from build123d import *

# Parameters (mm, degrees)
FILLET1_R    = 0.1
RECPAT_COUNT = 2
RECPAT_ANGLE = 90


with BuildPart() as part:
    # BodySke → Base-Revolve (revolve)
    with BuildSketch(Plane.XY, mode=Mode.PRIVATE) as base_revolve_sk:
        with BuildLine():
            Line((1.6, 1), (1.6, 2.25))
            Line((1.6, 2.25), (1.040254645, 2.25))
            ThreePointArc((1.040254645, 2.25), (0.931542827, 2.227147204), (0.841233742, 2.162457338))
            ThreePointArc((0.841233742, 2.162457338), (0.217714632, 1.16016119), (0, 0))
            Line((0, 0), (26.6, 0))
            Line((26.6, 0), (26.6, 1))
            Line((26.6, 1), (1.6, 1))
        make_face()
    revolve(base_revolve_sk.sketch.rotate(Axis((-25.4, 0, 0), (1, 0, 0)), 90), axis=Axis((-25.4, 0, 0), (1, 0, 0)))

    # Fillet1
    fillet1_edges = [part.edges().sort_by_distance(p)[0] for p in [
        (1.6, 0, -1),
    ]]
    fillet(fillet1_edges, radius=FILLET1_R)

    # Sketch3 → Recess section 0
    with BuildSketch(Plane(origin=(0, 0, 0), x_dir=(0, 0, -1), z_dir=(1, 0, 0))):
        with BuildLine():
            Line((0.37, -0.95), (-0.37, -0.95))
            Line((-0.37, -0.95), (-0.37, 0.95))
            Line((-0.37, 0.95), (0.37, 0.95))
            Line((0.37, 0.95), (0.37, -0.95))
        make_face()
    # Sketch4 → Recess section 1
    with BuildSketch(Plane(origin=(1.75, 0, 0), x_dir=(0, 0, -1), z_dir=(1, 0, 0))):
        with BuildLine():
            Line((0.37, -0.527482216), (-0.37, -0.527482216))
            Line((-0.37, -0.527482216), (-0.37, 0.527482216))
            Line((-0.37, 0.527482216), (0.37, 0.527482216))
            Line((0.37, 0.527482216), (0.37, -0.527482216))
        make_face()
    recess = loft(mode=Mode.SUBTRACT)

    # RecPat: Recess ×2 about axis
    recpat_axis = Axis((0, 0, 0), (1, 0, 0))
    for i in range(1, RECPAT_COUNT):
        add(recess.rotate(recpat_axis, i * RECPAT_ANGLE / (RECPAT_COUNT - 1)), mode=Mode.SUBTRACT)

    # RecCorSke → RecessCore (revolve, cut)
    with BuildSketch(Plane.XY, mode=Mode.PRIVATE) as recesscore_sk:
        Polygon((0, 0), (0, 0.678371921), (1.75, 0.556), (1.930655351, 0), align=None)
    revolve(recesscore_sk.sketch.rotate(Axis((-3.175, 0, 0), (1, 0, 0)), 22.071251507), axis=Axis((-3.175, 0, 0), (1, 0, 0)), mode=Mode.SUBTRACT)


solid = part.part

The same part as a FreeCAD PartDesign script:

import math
import FreeCAD as App
import Part
import Sketcher
from FreeCAD import Vector
Q = App.Units.Quantity


def edges_at(feature, points):
    """Names of the edges that pass closest to the given points."""
    edges = feature.Shape.Edges
    near = lambda p: min(range(len(edges)), key=lambda i: edges[i].distToShape(Part.Vertex(*p))[0])
    return sorted({f"Edge{near(p) + 1}" for p in points})


def add_polygon(sketch, points):
    """Adds a closed chain of lines whose ends are joined by coincident constraints."""
    first, n = sketch.GeometryCount, len(points)
    for a, b in zip(points, points[1:] + points[:1]):
        sketch.addGeometry(Part.LineSegment(App.Vector(*a, 0), App.Vector(*b, 0)), False)
    for i in range(n):
        sketch.addConstraint(Sketcher.Constraint("Coincident", first + i, 2, first + (i + 1) % n, 1))

doc = App.newDocument("Part")
body = doc.addObject("PartDesign::Body", "Body")

sketch1 = body.newObject("Sketcher::SketchObject", "Sketch")
sketch1.AttachmentSupport = (doc.getObject("XY_Plane"), [""])
sketch1.MapMode = "FlatFace"
sketch1.addGeometry(Part.LineSegment(Vector(1.6, 1, 0), Vector(1.6, 2.25, 0)), False)
sketch1.addGeometry(Part.LineSegment(Vector(1.6, 2.25, 0), Vector(1.04, 2.25, 0)), False)
sketch1.addGeometry(Part.ArcOfCircle(Part.Circle(Vector(1.04, 1.98, 0), Vector(0, 0, 1), 0.27), math.radians(90), math.radians(137)), False)
sketch1.addGeometry(Part.ArcOfCircle(Part.Circle(Vector(3.2, 0, 0), Vector(0, 0, 1), 3.2), math.radians(137), math.radians(180)), False)
sketch1.addGeometry(Part.LineSegment(Vector(0, 0, 0), Vector(26.6, 0, 0)), False)
sketch1.addGeometry(Part.LineSegment(Vector(26.6, 0, 0), Vector(26.6, 1, 0)), False)
sketch1.addGeometry(Part.LineSegment(Vector(26.6, 1, 0), Vector(1.6, 1, 0)), False)
sketch1.addConstraint(Sketcher.Constraint("Coincident", 0, 2, 1, 1))
sketch1.addConstraint(Sketcher.Constraint("Tangent", 1, 2, 2, 1))
sketch1.addConstraint(Sketcher.Constraint("Tangent", 2, 2, 3, 1))
sketch1.addConstraint(Sketcher.Constraint("Coincident", 3, 2, 4, 1))
sketch1.addConstraint(Sketcher.Constraint("Coincident", 4, 2, 5, 1))
sketch1.addConstraint(Sketcher.Constraint("Coincident", 5, 2, 6, 1))
sketch1.addConstraint(Sketcher.Constraint("Coincident", 6, 2, 0, 1))
sketch1.addConstraint(Sketcher.Constraint("Vertical", 0))
sketch1.addConstraint(Sketcher.Constraint("Horizontal", 1))
sketch1.addConstraint(Sketcher.Constraint("Horizontal", 4))
sketch1.addConstraint(Sketcher.Constraint("Vertical", 5))
sketch1.addConstraint(Sketcher.Constraint("Horizontal", 6))
sketch1.addConstraint(Sketcher.Constraint("Coincident", 3, 2, -1, 1))
sketch1.addConstraint(Sketcher.Constraint("PointOnObject", 3, 3, -1))
sketch1.addConstraint(Sketcher.Constraint("Radius", 3, 3.2))
sketch1.addConstraint(Sketcher.Constraint("DistanceX", 6, 2, 6, 1, 25.0))
sketch1.addConstraint(Sketcher.Constraint("DistanceY", 5, 1, 5, 2, 1.0))
sketch1.addConstraint(Sketcher.Constraint("Radius", 2, 0.27))
sketch1.addConstraint(Sketcher.Constraint("DistanceX", 4, 1, 4, 2, 26.6))
sketch1.addConstraint(Sketcher.Constraint("DistanceY", 0, 1, 0, 2, 1.25))
revolution = body.newObject("PartDesign::Revolution", "Revolution")
revolution.Profile = sketch1
revolution.ReferenceAxis = (sketch1, ["H_Axis"])
revolution.Angle = 360
doc.recompute()

fillet = body.newObject("PartDesign::Fillet", "Fillet")
fillet.Base = (revolution, edges_at(revolution, [(1.6, 0, -1)]))
fillet.Radius = 0.1

sketch2 = body.newObject("Sketcher::SketchObject", "Sketch001")
sketch2.AttachmentSupport = (doc.getObject("YZ_Plane"), [""])
sketch2.MapMode = "FlatFace"
add_polygon(sketch2, [(-0.9, 0.4), (-0.9, -0.4), (0.9, -0.4), (0.9, 0.4)])
sketch2.addConstraint(Sketcher.Constraint("Vertical", 0))
sketch2.addConstraint(Sketcher.Constraint("Horizontal", 1))
sketch2.addConstraint(Sketcher.Constraint("Vertical", 2))
sketch2.addConstraint(Sketcher.Constraint("Horizontal", 3))
sketch2.addConstraint(Sketcher.Constraint("Symmetric", 0, 2, 2, 2, -1, 1))
sketch2.addConstraint(Sketcher.Constraint("DistanceX", 1, 1, 1, 2, 1.9))
sketch2.addConstraint(Sketcher.Constraint("DistanceY", 0, 2, 0, 1, 0.74))

sketch3 = body.newObject("Sketcher::SketchObject", "Sketch002")
sketch3.AttachmentSupport = (doc.getObject("YZ_Plane"), [""])
sketch3.MapMode = "FlatFace"
sketch3.AttachmentOffset = App.Placement(Vector(0, 0, 1.75), App.Rotation())
add_polygon(sketch3, [(-0.5, 0.4), (-0.5, -0.4), (0.5, -0.4), (0.5, 0.4)])
sketch3.addConstraint(Sketcher.Constraint("Vertical", 0))
sketch3.addConstraint(Sketcher.Constraint("Horizontal", 1))
sketch3.addConstraint(Sketcher.Constraint("Vertical", 2))
sketch3.addConstraint(Sketcher.Constraint("Horizontal", 3))
sketch3.addConstraint(Sketcher.Constraint("Symmetric", 0, 2, 2, 2, -1, 1))
sketch3.addConstraint(Sketcher.Constraint("DistanceY", 0, 2, 0, 1, 0.74))
sketch3.addConstraint(Sketcher.Constraint("DistanceX", 1, 1, 1, 2, 1.054964))

subtractiveloft = body.newObject("PartDesign::SubtractiveLoft", "SubtractiveLoft")
subtractiveloft.Profile = sketch2
subtractiveloft.Sections = [sketch3]
doc.recompute()

polarpattern = body.newObject("PartDesign::PolarPattern", "PolarPattern")
polarpattern.Originals = [subtractiveloft]
polarpattern.Axis = (doc.getObject("X_Axis"), [""])
polarpattern.Angle = 90
polarpattern.Occurrences = 2
body.Tip = polarpattern

sketch4 = body.newObject("Sketcher::SketchObject", "Sketch003")
sketch4.AttachmentSupport = (doc.getObject("XY_Plane"), [""])
sketch4.MapMode = "FlatFace"
add_polygon(sketch4, [(0, 0.7), (0, 0), (1.9, 0), (1.8, 0.6)])
sketch4.addConstraint(Sketcher.Constraint("Vertical", 0))
sketch4.addConstraint(Sketcher.Constraint("Horizontal", 1))
sketch4.addConstraint(Sketcher.Constraint("Coincident", 0, 2, -1, 1))
sketch4.addConstraint(Sketcher.Constraint("Angle", 2, Q("108 deg")))
sketch4.addConstraint(Sketcher.Constraint("Angle", 3, Q("176 deg")))
sketch4.addConstraint(Sketcher.Constraint("DistanceX", -1, 1, 2, 2, 1.75))
sketch4.addConstraint(Sketcher.Constraint("DistanceY", -1, 1, 2, 2, 0.556))
groove = body.newObject("PartDesign::Groove", "Groove")
groove.Profile = sketch4
groove.ReferenceAxis = (sketch4, ["H_Axis"])
groove.Angle = 360

doc.recompute()
